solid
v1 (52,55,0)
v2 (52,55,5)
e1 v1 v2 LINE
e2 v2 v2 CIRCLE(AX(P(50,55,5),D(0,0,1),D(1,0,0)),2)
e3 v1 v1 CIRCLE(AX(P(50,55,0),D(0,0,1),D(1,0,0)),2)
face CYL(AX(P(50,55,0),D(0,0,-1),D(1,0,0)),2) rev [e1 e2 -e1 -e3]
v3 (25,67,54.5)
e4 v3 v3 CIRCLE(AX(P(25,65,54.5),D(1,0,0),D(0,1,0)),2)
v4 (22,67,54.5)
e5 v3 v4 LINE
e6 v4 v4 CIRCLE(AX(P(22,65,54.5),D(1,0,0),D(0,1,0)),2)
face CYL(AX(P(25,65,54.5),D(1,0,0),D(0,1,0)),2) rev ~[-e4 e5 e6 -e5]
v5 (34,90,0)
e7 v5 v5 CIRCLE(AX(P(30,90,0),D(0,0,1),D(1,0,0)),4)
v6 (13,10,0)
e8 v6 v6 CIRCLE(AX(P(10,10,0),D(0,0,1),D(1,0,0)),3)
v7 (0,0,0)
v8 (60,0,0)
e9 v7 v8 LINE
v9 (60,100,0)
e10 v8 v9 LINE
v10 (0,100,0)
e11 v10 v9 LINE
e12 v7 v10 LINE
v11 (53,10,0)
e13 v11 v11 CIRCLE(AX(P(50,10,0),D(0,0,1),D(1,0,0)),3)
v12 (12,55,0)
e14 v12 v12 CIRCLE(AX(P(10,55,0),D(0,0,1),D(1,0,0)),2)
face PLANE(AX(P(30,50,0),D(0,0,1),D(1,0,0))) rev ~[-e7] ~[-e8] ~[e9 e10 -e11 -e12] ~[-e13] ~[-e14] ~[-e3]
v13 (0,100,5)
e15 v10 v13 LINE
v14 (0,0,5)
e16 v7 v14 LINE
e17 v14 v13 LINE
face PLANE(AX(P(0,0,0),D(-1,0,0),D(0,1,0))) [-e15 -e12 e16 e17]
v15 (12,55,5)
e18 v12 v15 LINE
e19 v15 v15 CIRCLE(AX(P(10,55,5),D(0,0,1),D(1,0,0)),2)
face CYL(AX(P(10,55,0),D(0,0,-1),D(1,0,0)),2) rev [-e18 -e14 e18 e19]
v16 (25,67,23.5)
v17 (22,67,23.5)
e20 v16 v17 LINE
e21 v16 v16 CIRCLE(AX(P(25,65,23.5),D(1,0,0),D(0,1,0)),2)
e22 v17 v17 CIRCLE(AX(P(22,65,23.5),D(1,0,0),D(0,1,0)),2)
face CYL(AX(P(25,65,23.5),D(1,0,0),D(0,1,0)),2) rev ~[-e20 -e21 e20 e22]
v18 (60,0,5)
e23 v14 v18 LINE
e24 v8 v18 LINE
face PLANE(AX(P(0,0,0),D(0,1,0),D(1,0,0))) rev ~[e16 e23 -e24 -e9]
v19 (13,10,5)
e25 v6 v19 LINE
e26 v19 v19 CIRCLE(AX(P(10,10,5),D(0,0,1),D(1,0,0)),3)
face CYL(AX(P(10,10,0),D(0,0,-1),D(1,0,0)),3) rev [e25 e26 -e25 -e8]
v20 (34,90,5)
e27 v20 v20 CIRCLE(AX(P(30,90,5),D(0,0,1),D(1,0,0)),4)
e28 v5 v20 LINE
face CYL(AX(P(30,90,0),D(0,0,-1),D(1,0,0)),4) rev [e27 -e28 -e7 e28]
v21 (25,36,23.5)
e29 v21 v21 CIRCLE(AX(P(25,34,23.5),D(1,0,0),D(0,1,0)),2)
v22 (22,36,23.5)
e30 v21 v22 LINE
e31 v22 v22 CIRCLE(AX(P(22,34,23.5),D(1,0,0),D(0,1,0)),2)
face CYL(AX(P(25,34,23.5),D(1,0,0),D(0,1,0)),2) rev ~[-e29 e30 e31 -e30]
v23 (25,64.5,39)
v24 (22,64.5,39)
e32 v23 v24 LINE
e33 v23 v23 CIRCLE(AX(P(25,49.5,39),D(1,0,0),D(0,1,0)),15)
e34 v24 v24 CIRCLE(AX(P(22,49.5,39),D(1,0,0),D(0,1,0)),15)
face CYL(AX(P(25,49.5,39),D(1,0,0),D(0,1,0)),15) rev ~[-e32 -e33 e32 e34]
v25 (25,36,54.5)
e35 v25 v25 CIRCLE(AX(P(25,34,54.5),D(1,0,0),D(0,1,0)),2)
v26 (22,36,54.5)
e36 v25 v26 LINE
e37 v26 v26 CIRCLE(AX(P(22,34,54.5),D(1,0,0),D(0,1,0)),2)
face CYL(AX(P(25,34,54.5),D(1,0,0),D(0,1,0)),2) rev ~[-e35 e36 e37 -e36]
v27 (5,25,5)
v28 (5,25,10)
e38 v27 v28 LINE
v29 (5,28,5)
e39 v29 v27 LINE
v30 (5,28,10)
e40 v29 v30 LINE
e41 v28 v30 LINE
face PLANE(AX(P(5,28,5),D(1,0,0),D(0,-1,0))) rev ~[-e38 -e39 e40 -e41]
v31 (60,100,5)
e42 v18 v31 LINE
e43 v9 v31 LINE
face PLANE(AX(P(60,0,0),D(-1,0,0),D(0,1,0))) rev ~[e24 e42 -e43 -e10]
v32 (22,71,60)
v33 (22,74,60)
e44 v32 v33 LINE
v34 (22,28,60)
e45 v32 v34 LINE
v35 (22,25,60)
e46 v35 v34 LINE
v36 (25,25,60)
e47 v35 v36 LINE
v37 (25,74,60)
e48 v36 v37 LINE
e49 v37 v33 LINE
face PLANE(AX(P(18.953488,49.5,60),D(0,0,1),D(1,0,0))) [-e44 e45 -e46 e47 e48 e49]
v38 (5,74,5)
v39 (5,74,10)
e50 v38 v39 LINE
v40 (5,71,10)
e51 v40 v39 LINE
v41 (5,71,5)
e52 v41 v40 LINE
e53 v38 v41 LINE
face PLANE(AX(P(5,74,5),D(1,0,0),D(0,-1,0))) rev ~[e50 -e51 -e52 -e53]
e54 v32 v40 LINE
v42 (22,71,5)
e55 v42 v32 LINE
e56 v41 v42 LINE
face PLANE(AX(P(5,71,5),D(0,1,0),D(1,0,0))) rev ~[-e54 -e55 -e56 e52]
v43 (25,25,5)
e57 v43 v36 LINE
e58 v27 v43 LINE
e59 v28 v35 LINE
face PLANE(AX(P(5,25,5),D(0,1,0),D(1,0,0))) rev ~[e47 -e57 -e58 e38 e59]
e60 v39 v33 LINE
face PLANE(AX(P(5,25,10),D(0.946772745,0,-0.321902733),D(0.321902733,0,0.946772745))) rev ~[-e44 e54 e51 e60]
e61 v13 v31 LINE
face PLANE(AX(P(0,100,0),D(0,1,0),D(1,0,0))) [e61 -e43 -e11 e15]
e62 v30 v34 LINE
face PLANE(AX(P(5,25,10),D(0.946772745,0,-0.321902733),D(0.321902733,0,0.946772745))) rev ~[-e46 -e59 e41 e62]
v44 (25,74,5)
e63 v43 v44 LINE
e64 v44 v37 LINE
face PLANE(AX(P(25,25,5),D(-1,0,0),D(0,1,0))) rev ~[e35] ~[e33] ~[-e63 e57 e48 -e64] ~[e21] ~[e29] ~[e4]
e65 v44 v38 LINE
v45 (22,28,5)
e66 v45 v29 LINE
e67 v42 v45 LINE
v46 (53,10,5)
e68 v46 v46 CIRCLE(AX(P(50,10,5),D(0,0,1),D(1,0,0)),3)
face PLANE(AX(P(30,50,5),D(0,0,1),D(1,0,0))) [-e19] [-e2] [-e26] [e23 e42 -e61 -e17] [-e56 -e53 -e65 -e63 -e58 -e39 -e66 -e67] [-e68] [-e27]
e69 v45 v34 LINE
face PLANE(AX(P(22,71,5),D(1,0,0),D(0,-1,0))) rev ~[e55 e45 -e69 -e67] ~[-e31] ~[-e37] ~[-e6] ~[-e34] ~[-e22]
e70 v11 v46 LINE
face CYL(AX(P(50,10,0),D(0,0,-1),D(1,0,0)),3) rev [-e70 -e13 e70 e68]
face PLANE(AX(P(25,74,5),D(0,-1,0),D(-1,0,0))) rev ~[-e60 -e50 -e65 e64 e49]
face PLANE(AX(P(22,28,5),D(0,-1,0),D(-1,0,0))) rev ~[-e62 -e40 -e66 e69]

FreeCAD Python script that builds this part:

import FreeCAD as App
import Part
import Sketcher
Q = App.Units.Quantity

doc = App.newDocument("Part")
params = doc.addObject("Spreadsheet::Sheet", "Params")
for row, (alias, value) in enumerate([
    ("sketch1_diameter", "6 mm"),
    ("sketch1_diameter2", "4 mm"),
    ("sketch1_diameter3", "8 mm"),
    ("sketch1_width", "60 mm"),
    ("sketch1_height", "100 mm"),
    ("pad1_length", "5 mm"),
    ("sketch2_width", "20 mm"),
    ("sketch2_width2", "17 mm"),
    ("sketch2_height", "3 mm"),
    ("sketch2_height2", "43 mm"),
    ("pad2_length", "55 mm"),
    ("sketch3_width", "17 mm"),
    ("sketch3_height", "50 mm"),
    ("sketch4_diameter", "30 mm"),
    ("sketch4_diameter2", "4 mm"),
], start=1):
    params.set(f"A{row}", alias)
    params.set(f"B{row}", "=" + value)
    params.setAlias(f"B{row}", alias)

body = doc.addObject("PartDesign::Body", "Body")

# Sketch on XY plane
sketch1 = body.newObject("Sketcher::SketchObject", "Sketch")
sketch1.AttachmentSupport = (doc.getObject("XY_Plane"), [""])
sketch1.MapMode = "FlatFace"
sketch1.addGeometry(Part.LineSegment(App.Vector(0, 100, 0), App.Vector(0, 0, 0)), False)
sketch1.addGeometry(Part.LineSegment(App.Vector(0, 0, 0), App.Vector(60, 0, 0)), False)
sketch1.addGeometry(Part.LineSegment(App.Vector(60, 0, 0), App.Vector(60, 100, 0)), False)
sketch1.addGeometry(Part.LineSegment(App.Vector(60, 100, 0), App.Vector(0, 100, 0)), False)
sketch1.addGeometry(Part.Circle(App.Vector(10, 10, 0), App.Vector(0, 0, 1), 3), False)
sketch1.addGeometry(Part.Circle(App.Vector(50, 10, 0), App.Vector(0, 0, 1), 3), False)
sketch1.addGeometry(Part.Circle(App.Vector(10, 55, 0), App.Vector(0, 0, 1), 2), False)
sketch1.addGeometry(Part.Circle(App.Vector(50, 55, 0), App.Vector(0, 0, 1), 2), False)
sketch1.addGeometry(Part.Circle(App.Vector(30, 90, 0), App.Vector(0, 0, 1), 4), False)
sketch1.addConstraint(Sketcher.Constraint("Coincident", 0, 2, 1, 1))
sketch1.addConstraint(Sketcher.Constraint("Coincident", 1, 2, 2, 1))
sketch1.addConstraint(Sketcher.Constraint("Coincident", 2, 2, 3, 1))
sketch1.addConstraint(Sketcher.Constraint("Coincident", 3, 2, 0, 1))
sketch1.addConstraint(Sketcher.Constraint("Vertical", 0))
sketch1.addConstraint(Sketcher.Constraint("Horizontal", 1))
sketch1.addConstraint(Sketcher.Constraint("Vertical", 2))
sketch1.addConstraint(Sketcher.Constraint("Horizontal", 3))
sketch1.addConstraint(Sketcher.Constraint("Coincident", 0, 2, -1, 1))
sketch1.addConstraint(Sketcher.Constraint("Equal", 4, 5))
sketch1.addConstraint(Sketcher.Constraint("Equal", 6, 7))
sketch1.addConstraint(Sketcher.Constraint("Horizontal", 4, 3, 5, 3))
sketch1.addConstraint(Sketcher.Constraint("Horizontal", 6, 3, 7, 3))
sketch1.addConstraint(Sketcher.Constraint("Vertical", 4, 3, 6, 3))
sketch1.addConstraint(Sketcher.Constraint("Vertical", 5, 3, 7, 3))
sketch1.addConstraint(Sketcher.Constraint("Diameter", 4, Q("6 mm")))
sketch1.addConstraint(Sketcher.Constraint("Diameter", 6, Q("4 mm")))
sketch1.addConstraint(Sketcher.Constraint("Diameter", 8, Q("8 mm")))
sketch1.addConstraint(Sketcher.Constraint("DistanceX", 1, 1, 1, 2, Q("60 mm")))
sketch1.addConstraint(Sketcher.Constraint("DistanceY", 0, 2, 0, 1, Q("100 mm")))
sketch1.addConstraint(Sketcher.Constraint("DistanceX", -1, 1, 4, 3, Q("10 mm")))
sketch1.addConstraint(Sketcher.Constraint("DistanceY", -1, 1, 4, 3, Q("10 mm")))
sketch1.addConstraint(Sketcher.Constraint("DistanceX", -1, 1, 5, 3, Q("50 mm")))
sketch1.addConstraint(Sketcher.Constraint("DistanceY", -1, 1, 6, 3, Q("55 mm")))
sketch1.addConstraint(Sketcher.Constraint("DistanceX", -1, 1, 8, 3, Q("30 mm")))
sketch1.addConstraint(Sketcher.Constraint("DistanceY", -1, 1, 8, 3, Q("90 mm")))
sketch1.setExpression("Constraints[15]", "Params.sketch1_diameter")
sketch1.setExpression("Constraints[16]", "Params.sketch1_diameter2")
sketch1.setExpression("Constraints[17]", "Params.sketch1_diameter3")
sketch1.setExpression("Constraints[18]", "Params.sketch1_width")
sketch1.setExpression("Constraints[19]", "Params.sketch1_height")
pad1 = body.newObject("PartDesign::Pad", "Pad")
pad1.Profile = sketch1
pad1.setExpression("Length", "Params.pad1_length")

# Sketch on XY plane
sketch2 = body.newObject("Sketcher::SketchObject", "Sketch001")
sketch2.AttachmentSupport = (doc.getObject("XY_Plane"), [""])
sketch2.MapMode = "FlatFace"
sketch2.AttachmentOffset = App.Placement(App.Vector(0, 0, 5), App.Rotation())
sketch2.addGeometry(Part.LineSegment(App.Vector(25, 74, 0), App.Vector(5, 74, 0)), False)
sketch2.addGeometry(Part.LineSegment(App.Vector(5, 74, 0), App.Vector(5, 71, 0)), False)
sketch2.addGeometry(Part.LineSegment(App.Vector(5, 71, 0), App.Vector(22, 71, 0)), False)
sketch2.addGeometry(Part.LineSegment(App.Vector(22, 71, 0), App.Vector(22, 28, 0)), False)
sketch2.addGeometry(Part.LineSegment(App.Vector(22, 28, 0), App.Vector(5, 28, 0)), False)
sketch2.addGeometry(Part.LineSegment(App.Vector(5, 28, 0), App.Vector(5, 25, 0)), False)
sketch2.addGeometry(Part.LineSegment(App.Vector(5, 25, 0), App.Vector(25, 25, 0)), False)
sketch2.addGeometry(Part.LineSegment(App.Vector(25, 25, 0), App.Vector(25, 74, 0)), False)
sketch2.addConstraint(Sketcher.Constraint("Coincident", 0, 2, 1, 1))
sketch2.addConstraint(Sketcher.Constraint("Coincident", 1, 2, 2, 1))
sketch2.addConstraint(Sketcher.Constraint("Coincident", 2, 2, 3, 1))
sketch2.addConstraint(Sketcher.Constraint("Coincident", 3, 2, 4, 1))
sketch2.addConstraint(Sketcher.Constraint("Coincident", 4, 2, 5, 1))
sketch2.addConstraint(Sketcher.Constraint("Coincident", 5, 2, 6, 1))
sketch2.addConstraint(Sketcher.Constraint("Coincident", 6, 2, 7, 1))
sketch2.addConstraint(Sketcher.Constraint("Coincident", 7, 2, 0, 1))
sketch2.addConstraint(Sketcher.Constraint("Horizontal", 0))
sketch2.addConstraint(Sketcher.Constraint("Vertical", 1))
sketch2.addConstraint(Sketcher.Constraint("Horizontal", 2))
sketch2.addConstraint(Sketcher.Constraint("Vertical", 3))
sketch2.addConstraint(Sketcher.Constraint("Horizontal", 4))
sketch2.addConstraint(Sketcher.Constraint("Vertical", 5))
sketch2.addConstraint(Sketcher.Constraint("Horizontal", 6))
sketch2.addConstraint(Sketcher.Constraint("Vertical", 7))
sketch2.addConstraint(Sketcher.Constraint("Vertical", 1, 2, 4, 2))
sketch2.addConstraint(Sketcher.Constraint("Equal", 1, 5))
sketch2.addConstraint(Sketcher.Constraint("DistanceX", 0, 2, 0, 1, Q("20 mm")))
sketch2.addConstraint(Sketcher.Constraint("DistanceX", 2, 1, 2, 2, Q("17 mm")))
sketch2.addConstraint(Sketcher.Constraint("DistanceY", 1, 2, 1, 1, Q("3 mm")))
sketch2.addConstraint(Sketcher.Constraint("DistanceY", 3, 2, 3, 1, Q("43 mm")))
sketch2.addConstraint(Sketcher.Constraint("DistanceX", -1, 1, 0, 2, Q("5 mm")))
sketch2.addConstraint(Sketcher.Constraint("DistanceY", -1, 1, 0, 2, Q("74 mm")))
sketch2.setExpression("Constraints[18]", "Params.sketch2_width")
sketch2.setExpression("Constraints[19]", "Params.sketch2_width2")
sketch2.setExpression("Constraints[20]", "Params.sketch2_height")
sketch2.setExpression("Constraints[21]", "Params.sketch2_height2")
pad2 = body.newObject("PartDesign::Pad", "Pad001")
pad2.Profile = sketch2
pad2.setExpression("Length", "Params.pad2_length")

# Sketch on XZ plane
sketch3 = body.newObject("Sketcher::SketchObject", "Sketch002")
sketch3.AttachmentSupport = (doc.getObject("XZ_Plane"), [""])
sketch3.MapMode = "FlatFace"
sketch3.AttachmentOffset = App.Placement(App.Vector(0, 0, -25), App.Rotation())
sketch3.addGeometry(Part.LineSegment(App.Vector(22, 60, 0), App.Vector(5, 60, 0)), False)
sketch3.addGeometry(Part.LineSegment(App.Vector(5, 60, 0), App.Vector(5, 10, 0)), False)
sketch3.addGeometry(Part.LineSegment(App.Vector(5, 10, 0), App.Vector(22, 60, 0)), False)
sketch3.addConstraint(Sketcher.Constraint("Coincident", 0, 2, 1, 1))
sketch3.addConstraint(Sketcher.Constraint("Coincident", 1, 2, 2, 1))
sketch3.addConstraint(Sketcher.Constraint("Coincident", 2, 2, 0, 1))
sketch3.addConstraint(Sketcher.Constraint("Horizontal", 0))
sketch3.addConstraint(Sketcher.Constraint("Vertical", 1))
sketch3.addConstraint(Sketcher.Constraint("DistanceX", 0, 2, 0, 1, Q("17 mm")))
sketch3.addConstraint(Sketcher.Constraint("DistanceY", 1, 2, 1, 1, Q("50 mm")))
sketch3.addConstraint(Sketcher.Constraint("DistanceX", -1, 1, 0, 2, Q("5 mm")))
sketch3.addConstraint(Sketcher.Constraint("DistanceY", -1, 1, 0, 2, Q("60 mm")))
sketch3.setExpression("Constraints[5]", "Params.sketch3_width")
sketch3.setExpression("Constraints[6]", "Params.sketch3_height")
pocket1 = body.newObject("PartDesign::Pocket", "Pocket")
pocket1.Profile = sketch3
pocket1.Type = "ThroughAll"

# Sketch on YZ plane
sketch4 = body.newObject("Sketcher::SketchObject", "Sketch003")
sketch4.AttachmentSupport = (doc.getObject("YZ_Plane"), [""])
sketch4.MapMode = "FlatFace"
sketch4.AttachmentOffset = App.Placement(App.Vector(0, 0, 25), App.Rotation())
sketch4.addGeometry(Part.Circle(App.Vector(49.5, 39, 0), App.Vector(0, 0, 1), 15), False)
sketch4.addGeometry(Part.Circle(App.Vector(34, 54.5, 0), App.Vector(0, 0, 1), 2), False)
sketch4.addGeometry(Part.Circle(App.Vector(65, 54.5, 0), App.Vector(0, 0, 1), 2), False)
sketch4.addGeometry(Part.Circle(App.Vector(65, 23.5, 0), App.Vector(0, 0, 1), 2), False)
sketch4.addGeometry(Part.Circle(App.Vector(34, 23.5, 0), App.Vector(0, 0, 1), 2), False)
sketch4.addConstraint(Sketcher.Constraint("Equal", 1, 2))
sketch4.addConstraint(Sketcher.Constraint("Equal", 2, 3))
sketch4.addConstraint(Sketcher.Constraint("Equal", 3, 4))
sketch4.addConstraint(Sketcher.Constraint("Horizontal", 1, 3, 2, 3))
sketch4.addConstraint(Sketcher.Constraint("Horizontal", 3, 3, 4, 3))
sketch4.addConstraint(Sketcher.Constraint("Vertical", 2, 3, 3, 3))
sketch4.addConstraint(Sketcher.Constraint("Vertical", 1, 3, 4, 3))
sketch4.addConstraint(Sketcher.Constraint("Diameter", 0, Q("30 mm")))
sketch4.addConstraint(Sketcher.Constraint("Diameter", 1, Q("4 mm")))
sketch4.addConstraint(Sketcher.Constraint("DistanceY", -1, 1, 0, 3, Q("39 mm")))
sketch4.addConstraint(Sketcher.Constraint("DistanceX", -1, 1, 1, 3, Q("34 mm")))
sketch4.addConstraint(Sketcher.Constraint("DistanceX", -1, 1, 2, 3, Q("65 mm")))
sketch4.addConstraint(Sketcher.Constraint("DistanceY", 3, 3, 2, 3, Q("31 mm")))
sketch4.addConstraint(Sketcher.Constraint("DistanceX", -1, 1, 0, 3, Q("49.5 mm")))
sketch4.addConstraint(Sketcher.Constraint("DistanceY", -1, 1, 1, 3, Q("54.5 mm")))
sketch4.setExpression("Constraints[7]", "Params.sketch4_diameter")
sketch4.setExpression("Constraints[8]", "Params.sketch4_diameter2")
pocket2 = body.newObject("PartDesign::Pocket", "Pocket001")
pocket2.Profile = sketch4
pocket2.Type = "ThroughAll"

doc.recompute()
